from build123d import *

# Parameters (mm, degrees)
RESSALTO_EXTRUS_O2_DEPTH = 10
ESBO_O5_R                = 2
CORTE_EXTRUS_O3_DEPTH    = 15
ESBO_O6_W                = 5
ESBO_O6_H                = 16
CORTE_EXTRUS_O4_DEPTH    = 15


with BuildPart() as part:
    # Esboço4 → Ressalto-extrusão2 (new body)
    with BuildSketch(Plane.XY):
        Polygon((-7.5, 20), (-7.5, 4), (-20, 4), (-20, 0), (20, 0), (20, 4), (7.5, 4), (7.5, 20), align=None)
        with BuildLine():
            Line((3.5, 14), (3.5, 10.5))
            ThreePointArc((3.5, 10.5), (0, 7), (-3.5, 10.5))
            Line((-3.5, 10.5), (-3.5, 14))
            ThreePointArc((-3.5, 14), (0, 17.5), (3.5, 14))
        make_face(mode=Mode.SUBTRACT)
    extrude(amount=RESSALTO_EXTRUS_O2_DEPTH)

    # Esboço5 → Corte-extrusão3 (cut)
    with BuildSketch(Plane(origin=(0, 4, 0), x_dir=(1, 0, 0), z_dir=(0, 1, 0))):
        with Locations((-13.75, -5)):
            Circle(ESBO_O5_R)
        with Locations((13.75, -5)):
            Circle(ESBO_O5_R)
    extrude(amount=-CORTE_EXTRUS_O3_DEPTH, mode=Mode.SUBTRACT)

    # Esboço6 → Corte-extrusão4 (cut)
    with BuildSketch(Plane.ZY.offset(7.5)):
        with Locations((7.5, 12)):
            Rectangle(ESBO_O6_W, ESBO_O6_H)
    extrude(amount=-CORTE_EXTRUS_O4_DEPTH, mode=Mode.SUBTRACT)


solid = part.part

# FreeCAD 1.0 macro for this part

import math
import FreeCAD as App
import Part
import Sketcher

V = App.Vector


def add_polygon(sketch, points):
    """Adds a closed chain of lines whose ends are joined by coincident constraints."""
    first, n = sketch.GeometryCount, len(points)
    for a, b in zip(points, points[1:] + points[:1]):
        sketch.addGeometry(Part.LineSegment(App.Vector(*a, 0), App.Vector(*b, 0)), False)
    for i in range(n):
        sketch.addConstraint(Sketcher.Constraint("Coincident", first + i, 2, first + (i + 1) % n, 1))

doc = App.newDocument("Part")
body = doc.addObject("PartDesign::Body", "Body")

sketch1 = body.newObject("Sketcher::SketchObject", "Sketch")
sketch1.AttachmentSupport = (doc.getObject("XY_Plane"), [""])
sketch1.MapMode = "FlatFace"
add_polygon(sketch1, [(-7.5, 20), (-7.5, 4), (-20, 4), (-20, 0), (20, 0), (20, 4), (7.5, 4), (7.5, 20)])
sketch1.addGeometry(Part.ArcOfCircle(Part.Circle(V(0, 14, 0), V(0, 0, 1), 3.5), math.radians(0), math.radians(180)), False)
sketch1.addGeometry(Part.LineSegment(V(3.5, 14, 0), V(3.5, 10.5, 0)), False)
sketch1.addGeometry(Part.ArcOfCircle(Part.Circle(V(0, 10.5, 0), V(0, 0, 1), 3.5), math.radians(180), math.radians(360)), False)
sketch1.addGeometry(Part.LineSegment(V(-3.5, 10.5, 0), V(-3.5, 14, 0)), False)
sketch1.addConstraint(Sketcher.Constraint("Tangent", 8, 1, 9, 1))
sketch1.addConstraint(Sketcher.Constraint("Tangent", 9, 2, 10, 2))
sketch1.addConstraint(Sketcher.Constraint("Tangent", 10, 1, 11, 1))
sketch1.addConstraint(Sketcher.Constraint("Tangent", 11, 2, 8, 2))
sketch1.addConstraint(Sketcher.Constraint("Vertical", 0))
sketch1.addConstraint(Sketcher.Constraint("Horizontal", 1))
sketch1.addConstraint(Sketcher.Constraint("Vertical", 2))
sketch1.addConstraint(Sketcher.Constraint("Horizontal", 3))
sketch1.addConstraint(Sketcher.Constraint("Vertical", 4))
sketch1.addConstraint(Sketcher.Constraint("Horizontal", 5))
sketch1.addConstraint(Sketcher.Constraint("Vertical", 6))
sketch1.addConstraint(Sketcher.Constraint("Horizontal", 7))
sketch1.addConstraint(Sketcher.Constraint("Vertical", 9))
sketch1.addConstraint(Sketcher.Constraint("Vertical", 11))
sketch1.addConstraint(Sketcher.Constraint("Symmetric", 2, 2, 3, 2, -1, 1))
sketch1.addConstraint(Sketcher.Constraint("Symmetric", 0, 2, 5, 2, -2))
sketch1.addConstraint(Sketcher.Constraint("PointOnObject", 8, 3, -2))
sketch1.addConstraint(Sketcher.Constraint("Radius", 8, 3.5))
sketch1.addConstraint(Sketcher.Constraint("DistanceX", 3, 1, 3, 2, 40.0))
sketch1.addConstraint(Sketcher.Constraint("DistanceX", 7, 2, 7, 1, 15.0))
sketch1.addConstraint(Sketcher.Constraint("DistanceY", 0, 2, 0, 1, 16.0))
sketch1.addConstraint(Sketcher.Constraint("DistanceY", 2, 2, 2, 1, 4.0))
sketch1.addConstraint(Sketcher.Constraint("DistanceY", 9, 2, 9, 1, 3.5))
sketch1.addConstraint(Sketcher.Constraint("DistanceY", -1, 1, 8, 3, 14.0))
pad1 = body.newObject("PartDesign::Pad", "Pad")
pad1.Profile = sketch1
pad1.Length = 10

sketch2 = body.newObject("Sketcher::SketchObject", "Sketch001")
sketch2.AttachmentSupport = (doc.getObject("XZ_Plane"), [""])
sketch2.MapMode = "FlatFace"
sketch2.AttachmentOffset = App.Placement(V(0, 0, -4), App.Rotation())
sketch2.addGeometry(Part.Circle(V(-13.75, 5, 0), V(0, 0, 1), 2), False)
sketch2.addGeometry(Part.Circle(V(13.75, 5, 0), V(0, 0, 1), 2), False)
sketch2.addConstraint(Sketcher.Constraint("Equal", 0, 1))
sketch2.addConstraint(Sketcher.Constraint("Symmetric", 0, 3, 1, 3, -2))
sketch2.addConstraint(Sketcher.Constraint("Diameter", 0, 4.0))
sketch2.addConstraint(Sketcher.Constraint("DistanceY", -1, 1, 0, 3, 5.0))
sketch2.addConstraint(Sketcher.Constraint("DistanceX", 0, 3, 1, 3, 27.5))
pocket1 = body.newObject("PartDesign::Pocket", "Pocket")
pocket1.Profile = sketch2
pocket1.Length = 15
pocket1.Reversed = True

sketch3 = body.newObject("Sketcher::SketchObject", "Sketch002")
sketch3.AttachmentSupport = (doc.getObject("YZ_Plane"), [""])
sketch3.MapMode = "FlatFace"
sketch3.AttachmentOffset = App.Placement(V(0, 0, -7.5), App.Rotation())
add_polygon(sketch3, [(20, 5), (4, 5), (4, 10), (20, 10)])
sketch3.addConstraint(Sketcher.Constraint("Horizontal", 0))
sketch3.addConstraint(Sketcher.Constraint("Vertical", 1))
sketch3.addConstraint(Sketcher.Constraint("Horizontal", 2))
sketch3.addConstraint(Sketcher.Constraint("Vertical", 3))
sketch3.addConstraint(Sketcher.Constraint("DistanceX", 0, 2, 0, 1, 16.0))
sketch3.addConstraint(Sketcher.Constraint("DistanceY", 1, 1, 1, 2, 5.0))
sketch3.addConstraint(Sketcher.Constraint("DistanceX", -1, 1, 0, 2, 4.0))
sketch3.addConstraint(Sketcher.Constraint("DistanceY", -1, 1, 0, 2, 5.0))
pocket2 = body.newObject("PartDesign::Pocket", "Pocket001")
pocket2.Profile = sketch3
pocket2.Length = 15
pocket2.Reversed = True

doc.recompute()
